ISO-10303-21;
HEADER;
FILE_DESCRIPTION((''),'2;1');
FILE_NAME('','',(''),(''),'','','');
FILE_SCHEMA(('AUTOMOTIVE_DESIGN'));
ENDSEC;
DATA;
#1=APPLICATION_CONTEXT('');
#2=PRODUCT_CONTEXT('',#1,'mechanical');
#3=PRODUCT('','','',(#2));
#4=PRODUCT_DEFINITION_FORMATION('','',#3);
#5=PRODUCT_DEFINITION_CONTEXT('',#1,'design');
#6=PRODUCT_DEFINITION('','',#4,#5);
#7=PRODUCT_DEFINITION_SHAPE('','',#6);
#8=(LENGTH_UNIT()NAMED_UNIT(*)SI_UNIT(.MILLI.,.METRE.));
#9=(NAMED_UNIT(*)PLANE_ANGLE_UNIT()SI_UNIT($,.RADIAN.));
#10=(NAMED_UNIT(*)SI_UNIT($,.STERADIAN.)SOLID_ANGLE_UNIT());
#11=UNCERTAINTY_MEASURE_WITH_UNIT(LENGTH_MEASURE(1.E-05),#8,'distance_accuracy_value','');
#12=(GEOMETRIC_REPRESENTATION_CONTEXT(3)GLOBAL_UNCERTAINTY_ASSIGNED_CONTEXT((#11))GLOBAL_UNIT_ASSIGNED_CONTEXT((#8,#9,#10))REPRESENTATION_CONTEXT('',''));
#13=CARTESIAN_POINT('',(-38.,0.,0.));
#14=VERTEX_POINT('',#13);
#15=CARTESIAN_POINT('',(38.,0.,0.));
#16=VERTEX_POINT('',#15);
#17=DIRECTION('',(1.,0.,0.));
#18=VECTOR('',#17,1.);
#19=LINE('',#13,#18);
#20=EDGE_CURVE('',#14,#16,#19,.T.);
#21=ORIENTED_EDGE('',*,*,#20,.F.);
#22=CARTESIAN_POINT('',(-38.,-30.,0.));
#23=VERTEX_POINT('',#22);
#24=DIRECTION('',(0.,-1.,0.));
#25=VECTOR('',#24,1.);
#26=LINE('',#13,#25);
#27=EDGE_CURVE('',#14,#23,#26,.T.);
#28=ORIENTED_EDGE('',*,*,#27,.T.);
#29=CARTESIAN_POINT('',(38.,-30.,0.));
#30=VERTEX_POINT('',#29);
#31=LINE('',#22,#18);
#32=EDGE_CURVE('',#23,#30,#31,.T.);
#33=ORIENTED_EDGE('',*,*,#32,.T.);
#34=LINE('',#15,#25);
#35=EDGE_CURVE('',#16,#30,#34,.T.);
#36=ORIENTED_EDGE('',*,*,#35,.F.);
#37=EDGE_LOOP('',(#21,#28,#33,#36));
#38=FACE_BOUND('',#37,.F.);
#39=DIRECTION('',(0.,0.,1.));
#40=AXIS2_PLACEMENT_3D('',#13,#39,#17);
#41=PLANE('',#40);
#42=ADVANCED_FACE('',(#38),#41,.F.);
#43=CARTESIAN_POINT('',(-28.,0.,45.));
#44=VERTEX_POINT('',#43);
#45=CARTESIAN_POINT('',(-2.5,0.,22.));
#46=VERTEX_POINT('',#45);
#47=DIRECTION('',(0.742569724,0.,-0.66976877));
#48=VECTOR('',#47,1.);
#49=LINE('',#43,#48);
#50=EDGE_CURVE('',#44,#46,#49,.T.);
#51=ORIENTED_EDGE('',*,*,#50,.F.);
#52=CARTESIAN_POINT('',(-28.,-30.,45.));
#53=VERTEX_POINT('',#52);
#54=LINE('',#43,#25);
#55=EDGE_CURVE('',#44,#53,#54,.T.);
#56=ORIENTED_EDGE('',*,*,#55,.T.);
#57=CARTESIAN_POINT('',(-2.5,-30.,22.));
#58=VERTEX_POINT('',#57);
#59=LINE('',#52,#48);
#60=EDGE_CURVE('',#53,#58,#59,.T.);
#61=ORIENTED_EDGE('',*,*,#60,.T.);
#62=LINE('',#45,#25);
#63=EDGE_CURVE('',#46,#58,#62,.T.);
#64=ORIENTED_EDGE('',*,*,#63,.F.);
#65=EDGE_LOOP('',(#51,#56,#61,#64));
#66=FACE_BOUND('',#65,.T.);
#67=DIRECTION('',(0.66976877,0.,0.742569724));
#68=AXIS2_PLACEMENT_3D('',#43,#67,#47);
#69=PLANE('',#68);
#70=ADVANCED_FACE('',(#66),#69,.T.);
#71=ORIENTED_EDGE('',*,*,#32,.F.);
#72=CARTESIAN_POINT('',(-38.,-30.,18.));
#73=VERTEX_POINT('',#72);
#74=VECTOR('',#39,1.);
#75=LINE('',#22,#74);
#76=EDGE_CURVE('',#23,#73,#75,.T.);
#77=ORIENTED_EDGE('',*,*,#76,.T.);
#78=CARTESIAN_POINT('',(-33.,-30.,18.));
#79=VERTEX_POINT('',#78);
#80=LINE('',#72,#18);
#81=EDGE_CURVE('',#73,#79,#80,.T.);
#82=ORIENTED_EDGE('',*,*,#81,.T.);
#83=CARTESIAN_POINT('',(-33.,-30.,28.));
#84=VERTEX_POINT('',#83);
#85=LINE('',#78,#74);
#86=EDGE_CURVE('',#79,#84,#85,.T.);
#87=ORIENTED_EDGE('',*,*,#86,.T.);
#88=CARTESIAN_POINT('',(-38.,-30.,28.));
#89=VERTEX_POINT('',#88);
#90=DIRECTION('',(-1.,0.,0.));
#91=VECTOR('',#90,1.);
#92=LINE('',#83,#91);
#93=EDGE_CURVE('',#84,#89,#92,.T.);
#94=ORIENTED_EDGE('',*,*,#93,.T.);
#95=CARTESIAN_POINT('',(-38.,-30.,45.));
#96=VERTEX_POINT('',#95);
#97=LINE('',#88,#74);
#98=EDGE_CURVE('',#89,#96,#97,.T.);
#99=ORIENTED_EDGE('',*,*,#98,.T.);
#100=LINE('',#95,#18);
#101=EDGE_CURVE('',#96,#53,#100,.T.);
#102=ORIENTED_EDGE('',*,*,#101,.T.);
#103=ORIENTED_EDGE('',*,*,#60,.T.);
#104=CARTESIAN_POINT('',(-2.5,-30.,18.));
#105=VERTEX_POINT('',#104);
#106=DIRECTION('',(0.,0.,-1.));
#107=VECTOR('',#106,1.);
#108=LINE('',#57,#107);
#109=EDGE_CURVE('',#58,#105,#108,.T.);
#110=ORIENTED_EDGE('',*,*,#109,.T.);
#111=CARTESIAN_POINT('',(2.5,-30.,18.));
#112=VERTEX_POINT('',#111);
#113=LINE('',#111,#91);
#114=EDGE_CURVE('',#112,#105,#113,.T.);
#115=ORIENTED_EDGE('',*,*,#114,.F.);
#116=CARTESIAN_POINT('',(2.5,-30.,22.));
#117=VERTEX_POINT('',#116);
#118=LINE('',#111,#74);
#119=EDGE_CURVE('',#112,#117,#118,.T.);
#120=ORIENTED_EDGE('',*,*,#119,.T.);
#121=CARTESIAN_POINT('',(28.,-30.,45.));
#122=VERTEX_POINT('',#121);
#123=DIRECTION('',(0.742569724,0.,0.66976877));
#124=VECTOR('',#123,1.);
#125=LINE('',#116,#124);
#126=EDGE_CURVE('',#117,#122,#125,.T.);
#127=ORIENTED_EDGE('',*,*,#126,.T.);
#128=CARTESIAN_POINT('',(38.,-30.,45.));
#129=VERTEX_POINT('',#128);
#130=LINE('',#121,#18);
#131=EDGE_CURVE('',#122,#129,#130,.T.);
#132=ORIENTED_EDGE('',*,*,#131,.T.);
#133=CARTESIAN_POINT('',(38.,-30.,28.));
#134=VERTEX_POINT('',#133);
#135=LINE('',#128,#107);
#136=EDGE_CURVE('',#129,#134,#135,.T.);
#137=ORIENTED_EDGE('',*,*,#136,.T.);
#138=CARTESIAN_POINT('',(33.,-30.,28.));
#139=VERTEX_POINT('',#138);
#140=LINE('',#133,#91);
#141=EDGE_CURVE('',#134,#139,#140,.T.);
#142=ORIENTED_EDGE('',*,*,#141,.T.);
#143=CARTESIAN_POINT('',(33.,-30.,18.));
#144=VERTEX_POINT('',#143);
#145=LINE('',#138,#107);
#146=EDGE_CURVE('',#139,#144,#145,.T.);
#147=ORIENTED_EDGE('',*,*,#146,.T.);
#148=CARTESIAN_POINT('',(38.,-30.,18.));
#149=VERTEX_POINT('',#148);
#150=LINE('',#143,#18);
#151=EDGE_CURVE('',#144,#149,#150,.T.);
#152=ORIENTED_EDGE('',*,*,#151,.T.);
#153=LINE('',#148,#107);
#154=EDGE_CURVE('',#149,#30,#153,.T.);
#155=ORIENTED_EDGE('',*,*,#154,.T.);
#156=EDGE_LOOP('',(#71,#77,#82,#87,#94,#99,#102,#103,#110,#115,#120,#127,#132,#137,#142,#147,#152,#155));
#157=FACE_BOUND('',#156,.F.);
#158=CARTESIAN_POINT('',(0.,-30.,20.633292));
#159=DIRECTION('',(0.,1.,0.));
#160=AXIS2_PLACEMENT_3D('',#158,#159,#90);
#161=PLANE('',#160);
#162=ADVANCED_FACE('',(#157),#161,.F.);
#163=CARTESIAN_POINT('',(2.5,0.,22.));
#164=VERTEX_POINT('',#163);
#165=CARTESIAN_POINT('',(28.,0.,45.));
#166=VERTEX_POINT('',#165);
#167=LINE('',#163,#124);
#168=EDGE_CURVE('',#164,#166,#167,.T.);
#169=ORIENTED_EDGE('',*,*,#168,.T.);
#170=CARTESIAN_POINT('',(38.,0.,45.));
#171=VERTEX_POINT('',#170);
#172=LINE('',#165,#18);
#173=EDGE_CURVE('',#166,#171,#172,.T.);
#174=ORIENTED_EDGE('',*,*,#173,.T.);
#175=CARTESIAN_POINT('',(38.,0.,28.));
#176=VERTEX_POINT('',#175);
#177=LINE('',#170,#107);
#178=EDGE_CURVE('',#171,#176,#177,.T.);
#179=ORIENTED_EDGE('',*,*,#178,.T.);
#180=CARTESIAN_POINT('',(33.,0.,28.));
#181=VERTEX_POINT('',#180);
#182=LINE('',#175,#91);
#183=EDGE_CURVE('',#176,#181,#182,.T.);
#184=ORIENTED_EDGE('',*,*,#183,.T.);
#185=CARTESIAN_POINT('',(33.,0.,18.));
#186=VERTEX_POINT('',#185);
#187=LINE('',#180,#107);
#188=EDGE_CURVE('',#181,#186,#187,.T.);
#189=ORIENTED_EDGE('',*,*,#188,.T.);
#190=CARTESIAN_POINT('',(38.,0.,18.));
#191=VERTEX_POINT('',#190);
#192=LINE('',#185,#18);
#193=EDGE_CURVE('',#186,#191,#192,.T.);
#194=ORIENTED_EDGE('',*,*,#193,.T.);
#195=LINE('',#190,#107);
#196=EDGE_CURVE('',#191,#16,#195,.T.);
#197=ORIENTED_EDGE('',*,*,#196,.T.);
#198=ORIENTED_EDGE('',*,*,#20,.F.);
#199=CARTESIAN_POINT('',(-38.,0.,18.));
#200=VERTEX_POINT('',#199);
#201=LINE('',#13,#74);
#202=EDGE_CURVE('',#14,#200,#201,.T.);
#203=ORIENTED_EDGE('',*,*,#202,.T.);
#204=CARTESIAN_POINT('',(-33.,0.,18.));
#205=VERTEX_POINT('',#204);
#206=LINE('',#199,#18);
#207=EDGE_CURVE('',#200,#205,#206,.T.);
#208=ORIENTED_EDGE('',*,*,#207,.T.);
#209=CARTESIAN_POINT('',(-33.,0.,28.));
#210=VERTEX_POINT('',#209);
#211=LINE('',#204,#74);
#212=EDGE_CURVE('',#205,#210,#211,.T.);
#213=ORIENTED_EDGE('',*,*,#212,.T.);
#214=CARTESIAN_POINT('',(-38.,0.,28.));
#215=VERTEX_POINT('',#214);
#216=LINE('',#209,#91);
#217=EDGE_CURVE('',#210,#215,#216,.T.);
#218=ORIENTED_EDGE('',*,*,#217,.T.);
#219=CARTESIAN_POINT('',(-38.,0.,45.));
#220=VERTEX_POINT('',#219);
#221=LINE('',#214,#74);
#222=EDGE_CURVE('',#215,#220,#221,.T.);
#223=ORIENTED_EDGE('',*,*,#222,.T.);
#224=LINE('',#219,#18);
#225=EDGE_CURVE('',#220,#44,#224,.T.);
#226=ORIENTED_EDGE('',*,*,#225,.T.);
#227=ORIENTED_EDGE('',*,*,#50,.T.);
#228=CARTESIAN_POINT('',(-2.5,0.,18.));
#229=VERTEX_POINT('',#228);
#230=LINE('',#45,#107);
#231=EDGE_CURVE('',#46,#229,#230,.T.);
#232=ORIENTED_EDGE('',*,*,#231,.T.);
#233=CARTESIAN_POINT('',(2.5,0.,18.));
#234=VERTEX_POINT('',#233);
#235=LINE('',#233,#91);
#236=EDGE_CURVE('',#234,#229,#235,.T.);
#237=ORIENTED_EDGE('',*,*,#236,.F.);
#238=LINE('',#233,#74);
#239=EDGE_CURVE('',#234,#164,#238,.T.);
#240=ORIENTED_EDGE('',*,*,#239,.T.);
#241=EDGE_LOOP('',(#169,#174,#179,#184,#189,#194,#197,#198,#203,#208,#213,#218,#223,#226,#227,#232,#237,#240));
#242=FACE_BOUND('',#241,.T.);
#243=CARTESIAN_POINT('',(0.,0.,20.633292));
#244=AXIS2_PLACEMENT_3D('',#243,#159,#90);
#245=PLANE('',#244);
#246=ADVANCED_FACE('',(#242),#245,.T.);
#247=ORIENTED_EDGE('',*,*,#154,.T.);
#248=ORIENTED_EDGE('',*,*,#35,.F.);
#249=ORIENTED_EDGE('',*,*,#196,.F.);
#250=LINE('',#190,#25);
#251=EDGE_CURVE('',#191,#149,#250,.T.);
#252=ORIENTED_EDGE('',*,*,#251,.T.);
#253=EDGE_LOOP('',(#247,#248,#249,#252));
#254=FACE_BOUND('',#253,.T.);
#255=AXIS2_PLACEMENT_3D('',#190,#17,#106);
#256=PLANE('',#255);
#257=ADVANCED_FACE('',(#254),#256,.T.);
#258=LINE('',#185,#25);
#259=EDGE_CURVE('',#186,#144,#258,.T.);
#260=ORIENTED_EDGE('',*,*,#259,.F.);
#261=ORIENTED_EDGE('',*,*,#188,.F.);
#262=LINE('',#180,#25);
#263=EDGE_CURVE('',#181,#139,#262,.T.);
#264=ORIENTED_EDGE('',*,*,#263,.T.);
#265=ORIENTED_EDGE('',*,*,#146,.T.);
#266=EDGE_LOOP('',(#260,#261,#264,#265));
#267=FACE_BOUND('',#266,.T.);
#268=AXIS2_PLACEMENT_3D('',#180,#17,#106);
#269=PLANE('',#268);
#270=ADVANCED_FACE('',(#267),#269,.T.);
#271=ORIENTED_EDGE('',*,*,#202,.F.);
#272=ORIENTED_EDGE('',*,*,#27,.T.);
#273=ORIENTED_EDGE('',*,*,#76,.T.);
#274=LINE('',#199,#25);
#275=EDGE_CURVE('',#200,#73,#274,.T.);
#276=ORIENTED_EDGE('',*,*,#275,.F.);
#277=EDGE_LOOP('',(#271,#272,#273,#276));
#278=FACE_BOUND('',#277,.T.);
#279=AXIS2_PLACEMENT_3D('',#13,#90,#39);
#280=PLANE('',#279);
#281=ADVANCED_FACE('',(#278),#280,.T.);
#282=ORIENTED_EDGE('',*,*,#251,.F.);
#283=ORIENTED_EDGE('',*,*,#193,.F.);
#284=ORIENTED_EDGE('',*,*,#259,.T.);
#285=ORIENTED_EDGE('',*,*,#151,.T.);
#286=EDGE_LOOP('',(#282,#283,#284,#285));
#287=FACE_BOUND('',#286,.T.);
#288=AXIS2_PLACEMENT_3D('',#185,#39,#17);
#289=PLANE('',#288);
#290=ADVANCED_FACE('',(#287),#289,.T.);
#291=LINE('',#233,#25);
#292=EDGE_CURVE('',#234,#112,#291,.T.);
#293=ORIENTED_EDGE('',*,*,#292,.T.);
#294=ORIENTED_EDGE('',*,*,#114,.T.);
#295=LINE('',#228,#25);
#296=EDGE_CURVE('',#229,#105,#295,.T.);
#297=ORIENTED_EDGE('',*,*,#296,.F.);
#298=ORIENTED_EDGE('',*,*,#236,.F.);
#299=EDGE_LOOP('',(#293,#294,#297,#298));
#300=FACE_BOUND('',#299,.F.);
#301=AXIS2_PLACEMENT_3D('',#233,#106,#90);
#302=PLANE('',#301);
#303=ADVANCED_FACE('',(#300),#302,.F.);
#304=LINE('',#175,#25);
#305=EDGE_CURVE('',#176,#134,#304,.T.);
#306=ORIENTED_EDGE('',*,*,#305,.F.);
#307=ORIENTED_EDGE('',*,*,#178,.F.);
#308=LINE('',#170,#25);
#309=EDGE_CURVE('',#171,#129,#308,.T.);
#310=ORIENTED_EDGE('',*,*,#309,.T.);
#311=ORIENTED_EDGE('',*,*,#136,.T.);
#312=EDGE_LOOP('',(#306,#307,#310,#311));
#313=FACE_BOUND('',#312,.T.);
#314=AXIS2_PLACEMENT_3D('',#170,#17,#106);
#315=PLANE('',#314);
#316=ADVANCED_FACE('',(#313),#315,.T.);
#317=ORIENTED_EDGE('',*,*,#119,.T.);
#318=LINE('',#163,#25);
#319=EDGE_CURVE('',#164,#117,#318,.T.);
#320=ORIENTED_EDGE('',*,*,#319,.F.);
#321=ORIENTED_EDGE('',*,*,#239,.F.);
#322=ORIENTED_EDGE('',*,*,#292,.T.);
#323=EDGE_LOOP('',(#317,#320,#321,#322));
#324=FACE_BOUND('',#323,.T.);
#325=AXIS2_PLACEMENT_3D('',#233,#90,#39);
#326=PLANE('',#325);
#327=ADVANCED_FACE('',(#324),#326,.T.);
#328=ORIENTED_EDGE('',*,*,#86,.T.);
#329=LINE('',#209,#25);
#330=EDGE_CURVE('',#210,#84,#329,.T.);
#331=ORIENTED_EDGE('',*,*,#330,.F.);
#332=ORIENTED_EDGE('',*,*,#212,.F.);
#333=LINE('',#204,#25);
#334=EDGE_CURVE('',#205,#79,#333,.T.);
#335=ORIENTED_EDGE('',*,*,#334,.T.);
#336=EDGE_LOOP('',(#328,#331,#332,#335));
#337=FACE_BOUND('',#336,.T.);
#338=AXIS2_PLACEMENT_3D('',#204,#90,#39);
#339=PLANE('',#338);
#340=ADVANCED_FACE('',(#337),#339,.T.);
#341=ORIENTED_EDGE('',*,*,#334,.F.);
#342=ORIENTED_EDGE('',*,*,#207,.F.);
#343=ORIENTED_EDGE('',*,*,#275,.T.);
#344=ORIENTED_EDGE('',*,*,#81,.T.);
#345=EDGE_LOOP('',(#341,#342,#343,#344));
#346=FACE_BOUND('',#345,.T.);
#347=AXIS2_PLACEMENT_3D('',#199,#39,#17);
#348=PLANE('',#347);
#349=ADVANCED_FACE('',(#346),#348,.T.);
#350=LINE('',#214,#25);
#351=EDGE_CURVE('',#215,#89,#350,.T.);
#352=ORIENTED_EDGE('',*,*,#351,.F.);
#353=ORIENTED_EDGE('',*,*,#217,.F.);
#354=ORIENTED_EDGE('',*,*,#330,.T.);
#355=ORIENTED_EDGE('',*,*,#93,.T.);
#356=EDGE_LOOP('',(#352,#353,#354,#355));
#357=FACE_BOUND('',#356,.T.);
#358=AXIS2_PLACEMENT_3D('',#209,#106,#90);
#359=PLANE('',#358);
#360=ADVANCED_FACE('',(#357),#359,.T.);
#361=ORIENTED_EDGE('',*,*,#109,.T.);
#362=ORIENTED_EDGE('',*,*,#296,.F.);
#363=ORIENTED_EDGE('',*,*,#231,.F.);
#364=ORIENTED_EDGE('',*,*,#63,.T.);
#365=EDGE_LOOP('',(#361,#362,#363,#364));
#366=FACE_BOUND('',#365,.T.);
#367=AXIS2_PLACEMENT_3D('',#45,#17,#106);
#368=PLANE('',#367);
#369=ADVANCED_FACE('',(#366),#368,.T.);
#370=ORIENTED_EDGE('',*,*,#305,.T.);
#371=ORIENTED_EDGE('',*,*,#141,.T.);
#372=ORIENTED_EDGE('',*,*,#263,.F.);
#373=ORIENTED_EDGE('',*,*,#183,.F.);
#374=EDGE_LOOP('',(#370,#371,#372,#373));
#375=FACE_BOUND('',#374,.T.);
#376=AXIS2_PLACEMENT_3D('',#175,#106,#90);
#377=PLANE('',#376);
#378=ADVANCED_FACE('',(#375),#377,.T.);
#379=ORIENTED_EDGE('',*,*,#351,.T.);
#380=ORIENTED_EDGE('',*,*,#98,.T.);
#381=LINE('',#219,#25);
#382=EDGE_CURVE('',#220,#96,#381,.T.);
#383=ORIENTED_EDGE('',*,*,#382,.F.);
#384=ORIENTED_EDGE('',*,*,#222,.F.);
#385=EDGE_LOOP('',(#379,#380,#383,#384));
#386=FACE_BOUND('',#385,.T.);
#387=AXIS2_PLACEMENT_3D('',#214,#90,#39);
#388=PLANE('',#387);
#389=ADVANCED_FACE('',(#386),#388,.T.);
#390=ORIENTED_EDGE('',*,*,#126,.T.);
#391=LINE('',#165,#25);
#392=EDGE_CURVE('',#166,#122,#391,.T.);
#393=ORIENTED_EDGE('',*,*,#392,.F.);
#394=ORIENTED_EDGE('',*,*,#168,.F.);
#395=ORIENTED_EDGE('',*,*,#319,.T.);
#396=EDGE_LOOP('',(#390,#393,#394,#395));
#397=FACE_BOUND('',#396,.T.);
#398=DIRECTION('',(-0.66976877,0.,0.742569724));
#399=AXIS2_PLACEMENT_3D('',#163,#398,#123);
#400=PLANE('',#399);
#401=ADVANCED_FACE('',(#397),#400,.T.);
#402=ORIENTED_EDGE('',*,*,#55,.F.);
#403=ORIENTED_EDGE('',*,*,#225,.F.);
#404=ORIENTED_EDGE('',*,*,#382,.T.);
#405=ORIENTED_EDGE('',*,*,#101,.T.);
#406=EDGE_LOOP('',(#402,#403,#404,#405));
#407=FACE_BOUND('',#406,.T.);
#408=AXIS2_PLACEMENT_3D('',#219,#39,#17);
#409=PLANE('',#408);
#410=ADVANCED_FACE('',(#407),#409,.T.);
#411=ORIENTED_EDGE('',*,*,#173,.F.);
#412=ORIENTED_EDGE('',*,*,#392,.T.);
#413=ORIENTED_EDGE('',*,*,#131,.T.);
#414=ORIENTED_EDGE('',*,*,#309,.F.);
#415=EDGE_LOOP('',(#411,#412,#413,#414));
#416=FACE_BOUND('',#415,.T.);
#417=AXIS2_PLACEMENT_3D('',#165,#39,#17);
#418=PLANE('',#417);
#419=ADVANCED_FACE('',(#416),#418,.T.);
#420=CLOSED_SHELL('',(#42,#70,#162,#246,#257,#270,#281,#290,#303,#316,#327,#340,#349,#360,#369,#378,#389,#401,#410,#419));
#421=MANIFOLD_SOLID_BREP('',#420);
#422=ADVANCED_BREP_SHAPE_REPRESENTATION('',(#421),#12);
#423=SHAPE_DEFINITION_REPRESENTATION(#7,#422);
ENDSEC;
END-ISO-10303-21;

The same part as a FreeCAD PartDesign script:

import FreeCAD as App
import Part
import Sketcher


def add_polygon(sketch, points):
    """Adds a closed chain of lines whose ends are joined by coincident constraints."""
    first, n = sketch.GeometryCount, len(points)
    for a, b in zip(points, points[1:] + points[:1]):
        sketch.addGeometry(Part.LineSegment(App.Vector(*a, 0), App.Vector(*b, 0)), False)
    for i in range(n):
        sketch.addConstraint(Sketcher.Constraint("Coincident", first + i, 2, first + (i + 1) % n, 1))

doc = App.newDocument("Part")
body = doc.addObject("PartDesign::Body", "Body")

sketch1 = body.newObject("Sketcher::SketchObject", "Sketch")
sketch1.AttachmentSupport = (doc.getObject("XZ_Plane"), [""])
sketch1.MapMode = "FlatFace"
add_polygon(sketch1, [(-38, 0), (38, 0), (38, 18), (33, 18), (33, 28), (38, 28), (38, 45), (28, 45), (2.5, 22), (2.5, 18), (-2.5, 18), (-2.5, 22), (-28, 45), (-38, 45), (-38, 28), (-33, 28), (-33, 18), (-38, 18)])
sketch1.addConstraint([
    Sketcher.Constraint("Horizontal", 0),
    Sketcher.Constraint("Vertical", 1),
    Sketcher.Constraint("Horizontal", 2),
    Sketcher.Constraint("Vertical", 3),
    Sketcher.Constraint("Horizontal", 4),
    Sketcher.Constraint("Vertical", 5),
    Sketcher.Constraint("Horizontal", 6),
    Sketcher.Constraint("Vertical", 8),
    Sketcher.Constraint("Horizontal", 9),
    Sketcher.Constraint("Vertical", 10),
    Sketcher.Constraint("Horizontal", 12),
    Sketcher.Constraint("Vertical", 13),
    Sketcher.Constraint("Horizontal", 14),
    Sketcher.Constraint("Vertical", 15),
    Sketcher.Constraint("Horizontal", 16),
    Sketcher.Constraint("Vertical", 17),
    Sketcher.Constraint("Symmetric", 0, 2, 17, 2, -1, 1),
    Sketcher.Constraint("Symmetric", 7, 2, 10, 2, -2),
    Sketcher.Constraint("Symmetric", 6, 2, 11, 2, -2),
    Sketcher.Constraint("Symmetric", 4, 2, 13, 2, -2),
    Sketcher.Constraint("Symmetric", 2, 2, 15, 2, -2),
    Sketcher.Constraint("Horizontal", 2, 2, 8, 2),
    Sketcher.Constraint("Vertical", 1, 2, 4, 2),
    Sketcher.Constraint("Equal", 4, 9),
    Sketcher.Constraint("Equal", 12, 3),
    Sketcher.Constraint("DistanceX", 0, 1, 0, 2, 76.0),
    Sketcher.Constraint("DistanceX", 2, 2, 2, 1, 5.0),
    Sketcher.Constraint("DistanceX", 6, 2, 6, 1, 10.0),
    Sketcher.Constraint("DistanceY", 1, 1, 1, 2, 18.0),
    Sketcher.Constraint("DistanceY", 5, 1, 5, 2, 17.0),
    Sketcher.Constraint("DistanceY", 8, 2, 8, 1, 4.0),
])
pad1 = body.newObject("PartDesign::Pad", "Pad")
pad1.Profile = sketch1
pad1.Length = 30

doc.recompute()
